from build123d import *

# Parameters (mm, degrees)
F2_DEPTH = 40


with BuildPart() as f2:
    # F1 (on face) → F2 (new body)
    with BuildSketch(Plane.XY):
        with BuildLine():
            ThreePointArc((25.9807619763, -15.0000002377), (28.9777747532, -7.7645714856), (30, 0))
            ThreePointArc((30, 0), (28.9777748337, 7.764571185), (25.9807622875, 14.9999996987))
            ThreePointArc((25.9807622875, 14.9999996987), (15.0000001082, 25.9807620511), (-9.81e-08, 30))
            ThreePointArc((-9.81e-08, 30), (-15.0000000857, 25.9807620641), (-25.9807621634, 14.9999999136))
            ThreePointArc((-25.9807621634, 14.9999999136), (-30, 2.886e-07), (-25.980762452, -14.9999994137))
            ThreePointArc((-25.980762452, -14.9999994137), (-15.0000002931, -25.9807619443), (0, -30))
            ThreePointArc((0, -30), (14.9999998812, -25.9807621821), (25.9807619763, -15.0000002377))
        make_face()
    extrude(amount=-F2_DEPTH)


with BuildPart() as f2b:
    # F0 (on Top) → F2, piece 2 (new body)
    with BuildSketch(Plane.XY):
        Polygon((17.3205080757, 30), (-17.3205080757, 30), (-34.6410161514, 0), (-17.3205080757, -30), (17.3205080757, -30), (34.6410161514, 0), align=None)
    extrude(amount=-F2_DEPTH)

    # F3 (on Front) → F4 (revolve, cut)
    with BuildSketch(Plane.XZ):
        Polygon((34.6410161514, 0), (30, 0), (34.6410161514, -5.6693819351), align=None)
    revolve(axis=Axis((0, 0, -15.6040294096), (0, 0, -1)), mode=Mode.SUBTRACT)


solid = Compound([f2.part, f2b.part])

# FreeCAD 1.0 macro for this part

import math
import FreeCAD as App
import Part
import Sketcher
Q = App.Units.Quantity

doc = App.newDocument("Part")
body = doc.addObject("PartDesign::Body", "Body")

sketch1 = body.newObject("Sketcher::SketchObject", "Sketch")
sketch1.AttachmentSupport = (doc.getObject("XY_Plane"), [""])
sketch1.MapMode = "FlatFace"
sketch1.addGeometry([
    Part.ArcOfCircle(Part.Circle(App.Vector(0, 0, 0), App.Vector(0, 0, 1), 30), math.radians(-30.000001), math.radians(0)),
    Part.ArcOfCircle(Part.Circle(App.Vector(0, 0, 0), App.Vector(0, 0, 1), 30), math.radians(0), math.radians(90)),
    Part.ArcOfCircle(Part.Circle(App.Vector(0, 0, 0), App.Vector(0, 0, 1), 30), math.radians(90), math.radians(150)),
    Part.ArcOfCircle(Part.Circle(App.Vector(0, 0, 0), App.Vector(0, 0, 1), 30), math.radians(150), math.radians(209.999999)),
    Part.ArcOfCircle(Part.Circle(App.Vector(0, 0, 0), App.Vector(0, 0, 1), 30), math.radians(-150.000001), math.radians(-90)),
    Part.ArcOfCircle(Part.Circle(App.Vector(0, 0, 0), App.Vector(0, 0, 1), 30), math.radians(-90), math.radians(-30.000001)),
], False)
sketch1.addConstraint([
    Sketcher.Constraint("Tangent", 0, 2, 1, 1),
    Sketcher.Constraint("Tangent", 1, 2, 2, 1),
    Sketcher.Constraint("Tangent", 2, 2, 3, 1),
    Sketcher.Constraint("Tangent", 3, 2, 4, 1),
    Sketcher.Constraint("Tangent", 4, 2, 5, 1),
    Sketcher.Constraint("Tangent", 5, 2, 0, 1),
    Sketcher.Constraint("Coincident", 0, 3, -1, 1),
    Sketcher.Constraint("Coincident", 2, 3, -1, 1),
    Sketcher.Constraint("Equal", 2, 3),
    Sketcher.Constraint("PointOnObject", 0, 2, -1),
    Sketcher.Constraint("PointOnObject", 1, 2, -2),
    Sketcher.Constraint("PointOnObject", 4, 2, -2),
    Sketcher.Constraint("Horizontal", 3, 2, 5, 2),
    Sketcher.Constraint("Vertical", 2, 2, 3, 2),
    Sketcher.Constraint("Radius", 0, Q("30 mm")),
    Sketcher.Constraint("DistanceY", -1, 1, 2, 2, Q("15 mm")),
])
pad1 = body.newObject("PartDesign::Pad", "Pad")
pad1.Profile = sketch1
pad1.Length = 40
pad1.Reversed = True
body2 = doc.addObject("PartDesign::Body", "Body001")

sketch2 = body2.newObject("Sketcher::SketchObject", "Sketch001")
sketch2.AttachmentSupport = (doc.getObject("XY_Plane001"), [""])
sketch2.MapMode = "FlatFace"
sketch2.addGeometry([
    Part.LineSegment(App.Vector(17.320508, 30, 0), App.Vector(-17.320508, 30, 0)),
    Part.LineSegment(App.Vector(-17.320508, 30, 0), App.Vector(-34.641016, 0, 0)),
    Part.LineSegment(App.Vector(-34.641016, 0, 0), App.Vector(-17.320508, -30, 0)),
    Part.LineSegment(App.Vector(-17.320508, -30, 0), App.Vector(17.320508, -30, 0)),
    Part.LineSegment(App.Vector(17.320508, -30, 0), App.Vector(34.641016, 0, 0)),
    Part.LineSegment(App.Vector(34.641016, 0, 0), App.Vector(17.320508, 30, 0)),
], False)
sketch2.addConstraint([
    Sketcher.Constraint("Coincident", 0, 2, 1, 1),
    Sketcher.Constraint("Coincident", 1, 2, 2, 1),
    Sketcher.Constraint("Coincident", 2, 2, 3, 1),
    Sketcher.Constraint("Coincident", 3, 2, 4, 1),
    Sketcher.Constraint("Coincident", 4, 2, 5, 1),
    Sketcher.Constraint("Coincident", 5, 2, 0, 1),
    Sketcher.Constraint("Horizontal", 0),
    Sketcher.Constraint("Horizontal", 3),
    Sketcher.Constraint("Symmetric", 0, 2, 3, 2, -1, 1),
    Sketcher.Constraint("Symmetric", 1, 2, 4, 2, -1, 1),
    Sketcher.Constraint("PointOnObject", 1, 2, -1),
    Sketcher.Constraint("Parallel", 2, 5),
    Sketcher.Constraint("Vertical", 0, 2, 2, 2),
    Sketcher.Constraint("Angle", 1, Q("-120 deg")),
    Sketcher.Constraint("DistanceY", -1, 1, 0, 2, Q("30 mm")),
    Sketcher.Constraint("DistanceX", 0, 2, 0, 1, Q("34.641016 mm")),
])
pad2 = body2.newObject("PartDesign::Pad", "Pad001")
pad2.Profile = sketch2
pad2.Length = 40
pad2.Reversed = True

sketch3 = body2.newObject("Sketcher::SketchObject", "Sketch002")
sketch3.AttachmentSupport = (doc.getObject("XZ_Plane001"), [""])
sketch3.MapMode = "FlatFace"
sketch3.addGeometry([
    Part.LineSegment(App.Vector(34.641016, 0, 0), App.Vector(30, 0, 0)),
    Part.LineSegment(App.Vector(30, 0, 0), App.Vector(34.641016, -5.669382, 0)),
    Part.LineSegment(App.Vector(34.641016, -5.669382, 0), App.Vector(34.641016, 0, 0)),
], False)
sketch3.addConstraint([
    Sketcher.Constraint("Coincident", 0, 2, 1, 1),
    Sketcher.Constraint("Coincident", 1, 2, 2, 1),
    Sketcher.Constraint("Coincident", 2, 2, 0, 1),
    Sketcher.Constraint("Horizontal", 0),
    Sketcher.Constraint("Vertical", 2),
    Sketcher.Constraint("PointOnObject", 0, 2, -1),
    Sketcher.Constraint("DistanceX", -1, 1, 0, 2, Q("30 mm")),
    Sketcher.Constraint("DistanceY", 2, 1, 2, 2, Q("5.669382 mm")),
    Sketcher.Constraint("DistanceX", 0, 2, 0, 1, Q("4.641016 mm")),
])
groove = body2.newObject("PartDesign::Groove", "Groove")
groove.Profile = sketch3
groove.ReferenceAxis = (sketch3, ["V_Axis"])
groove.Angle = 360

doc.recompute()
